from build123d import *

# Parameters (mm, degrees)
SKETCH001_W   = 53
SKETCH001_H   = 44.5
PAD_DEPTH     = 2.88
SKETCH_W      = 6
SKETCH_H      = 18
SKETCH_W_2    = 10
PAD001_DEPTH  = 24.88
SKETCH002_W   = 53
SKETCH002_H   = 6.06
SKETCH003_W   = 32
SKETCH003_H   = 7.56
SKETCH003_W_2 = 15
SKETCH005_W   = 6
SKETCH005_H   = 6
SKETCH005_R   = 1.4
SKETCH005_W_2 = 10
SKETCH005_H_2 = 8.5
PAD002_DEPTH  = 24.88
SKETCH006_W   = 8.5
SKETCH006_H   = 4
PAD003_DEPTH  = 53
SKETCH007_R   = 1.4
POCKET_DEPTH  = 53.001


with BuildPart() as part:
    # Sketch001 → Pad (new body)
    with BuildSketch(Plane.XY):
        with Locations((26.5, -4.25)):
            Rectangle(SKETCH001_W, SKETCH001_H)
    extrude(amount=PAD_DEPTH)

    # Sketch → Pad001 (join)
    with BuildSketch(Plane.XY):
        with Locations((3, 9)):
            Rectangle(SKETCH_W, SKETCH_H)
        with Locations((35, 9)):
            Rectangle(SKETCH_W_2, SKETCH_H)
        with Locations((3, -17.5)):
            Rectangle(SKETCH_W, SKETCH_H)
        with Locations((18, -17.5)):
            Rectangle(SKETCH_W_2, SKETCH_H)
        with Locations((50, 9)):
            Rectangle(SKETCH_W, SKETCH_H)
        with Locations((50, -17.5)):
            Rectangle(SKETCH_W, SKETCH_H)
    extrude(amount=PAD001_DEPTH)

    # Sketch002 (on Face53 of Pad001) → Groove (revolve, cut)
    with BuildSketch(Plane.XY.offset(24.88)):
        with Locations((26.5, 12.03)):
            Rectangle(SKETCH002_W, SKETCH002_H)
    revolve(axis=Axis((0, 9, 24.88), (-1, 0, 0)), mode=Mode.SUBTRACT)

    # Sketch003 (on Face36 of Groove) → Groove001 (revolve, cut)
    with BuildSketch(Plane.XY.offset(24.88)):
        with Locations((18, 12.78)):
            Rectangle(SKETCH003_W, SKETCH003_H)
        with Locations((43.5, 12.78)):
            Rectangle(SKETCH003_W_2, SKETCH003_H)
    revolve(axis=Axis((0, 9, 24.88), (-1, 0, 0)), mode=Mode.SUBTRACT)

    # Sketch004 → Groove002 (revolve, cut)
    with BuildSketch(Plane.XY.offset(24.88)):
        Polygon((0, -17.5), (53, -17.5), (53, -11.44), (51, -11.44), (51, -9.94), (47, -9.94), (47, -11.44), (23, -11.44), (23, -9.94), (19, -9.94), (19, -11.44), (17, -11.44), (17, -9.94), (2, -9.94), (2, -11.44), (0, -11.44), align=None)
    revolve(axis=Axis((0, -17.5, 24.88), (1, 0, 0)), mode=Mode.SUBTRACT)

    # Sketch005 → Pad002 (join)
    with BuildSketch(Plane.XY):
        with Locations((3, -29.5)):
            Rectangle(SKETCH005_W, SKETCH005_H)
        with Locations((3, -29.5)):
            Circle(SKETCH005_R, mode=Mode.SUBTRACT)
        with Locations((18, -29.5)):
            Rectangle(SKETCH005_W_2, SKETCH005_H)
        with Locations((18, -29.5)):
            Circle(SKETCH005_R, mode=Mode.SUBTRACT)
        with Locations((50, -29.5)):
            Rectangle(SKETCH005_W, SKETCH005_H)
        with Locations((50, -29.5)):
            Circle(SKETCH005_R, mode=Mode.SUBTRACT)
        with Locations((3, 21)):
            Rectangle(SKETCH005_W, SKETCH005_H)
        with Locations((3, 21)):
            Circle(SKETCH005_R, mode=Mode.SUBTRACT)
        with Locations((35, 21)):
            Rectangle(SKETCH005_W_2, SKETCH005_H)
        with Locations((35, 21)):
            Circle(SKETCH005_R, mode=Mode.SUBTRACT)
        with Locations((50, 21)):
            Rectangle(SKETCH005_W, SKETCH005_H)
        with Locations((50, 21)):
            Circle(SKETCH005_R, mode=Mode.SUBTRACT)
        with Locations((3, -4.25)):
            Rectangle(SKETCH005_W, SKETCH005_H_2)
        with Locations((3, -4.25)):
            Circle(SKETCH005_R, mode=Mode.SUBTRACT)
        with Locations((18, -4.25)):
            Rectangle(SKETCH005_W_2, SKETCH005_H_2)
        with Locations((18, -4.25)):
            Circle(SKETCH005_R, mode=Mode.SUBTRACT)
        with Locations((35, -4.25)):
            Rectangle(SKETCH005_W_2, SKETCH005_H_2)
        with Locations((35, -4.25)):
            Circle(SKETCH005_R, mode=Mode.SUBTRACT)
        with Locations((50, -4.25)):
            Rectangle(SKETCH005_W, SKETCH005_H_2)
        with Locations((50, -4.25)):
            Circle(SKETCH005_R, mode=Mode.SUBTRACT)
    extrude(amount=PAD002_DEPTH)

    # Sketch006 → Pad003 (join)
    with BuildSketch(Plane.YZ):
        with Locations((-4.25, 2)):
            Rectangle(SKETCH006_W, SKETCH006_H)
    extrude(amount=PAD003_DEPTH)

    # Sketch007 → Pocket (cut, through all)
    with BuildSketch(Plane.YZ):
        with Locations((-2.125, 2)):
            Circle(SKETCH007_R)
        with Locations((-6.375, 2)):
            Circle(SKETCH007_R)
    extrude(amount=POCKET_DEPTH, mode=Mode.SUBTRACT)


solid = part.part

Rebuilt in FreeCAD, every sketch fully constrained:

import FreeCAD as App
import Part
import Sketcher
from FreeCAD import Vector


def add_polygon(sketch, points):
    """Adds a closed chain of lines whose ends are joined by coincident constraints."""
    first, n = sketch.GeometryCount, len(points)
    for a, b in zip(points, points[1:] + points[:1]):
        sketch.addGeometry(Part.LineSegment(App.Vector(*a, 0), App.Vector(*b, 0)), False)
    for i in range(n):
        sketch.addConstraint(Sketcher.Constraint("Coincident", first + i, 2, first + (i + 1) % n, 1))

doc = App.newDocument("Part")
body = doc.addObject("PartDesign::Body", "Body")

# Sketch on XY plane
sketch1 = body.newObject("Sketcher::SketchObject", "Sketch")
sketch1.AttachmentSupport = (doc.getObject("XY_Plane"), [""])
sketch1.MapMode = "FlatFace"
add_polygon(sketch1, [(0, 18), (0, -26), (53, -26), (53, 18)])  # lines 0-3
sketch1.addConstraint([
    Sketcher.Constraint("Vertical", 0),
    Sketcher.Constraint("Horizontal", 1),
    Sketcher.Constraint("Vertical", 2),
    Sketcher.Constraint("Horizontal", 3),
    Sketcher.Constraint("PointOnObject", 0, 2, -2),
    Sketcher.Constraint("DistanceX", 1, 1, 1, 2, 53.0),
    Sketcher.Constraint("DistanceY", 0, 2, 0, 1, 44.5),
    Sketcher.Constraint("DistanceY", -1, 1, 2, 2, 18.0),
])
pad1 = body.newObject("PartDesign::Pad", "Pad")
pad1.Profile = sketch1
pad1.Length = 2.88

# Sketch on XY plane
sketch2 = body.newObject("Sketcher::SketchObject", "Sketch001")
sketch2.AttachmentSupport = (doc.getObject("XY_Plane"), [""])
sketch2.MapMode = "FlatFace"
add_polygon(sketch2, [(0, 18), (0, 0), (6, 0), (6, 18)])  # lines 0-3
add_polygon(sketch2, [(30, 18), (30, 0), (40, 0), (40, 18)])  # lines 4-7
add_polygon(sketch2, [(0, -8), (0, -26), (6, -26), (6, -8)])  # lines 8-11
add_polygon(sketch2, [(13, -8), (13, -26), (23, -26), (23, -8)])  # lines 12-15
add_polygon(sketch2, [(47, 18), (47, 0), (53, 0), (53, 18)])  # lines 16-19
add_polygon(sketch2, [(47, -8), (47, -26), (53, -26), (53, -8)])  # lines 20-23
sketch2.addConstraint([
    Sketcher.Constraint("Vertical", 0),
    Sketcher.Constraint("Horizontal", 1),
    Sketcher.Constraint("Vertical", 2),
    Sketcher.Constraint("Horizontal", 3),
    Sketcher.Constraint("Vertical", 4),
    Sketcher.Constraint("Horizontal", 5),
    Sketcher.Constraint("Vertical", 6),
    Sketcher.Constraint("Horizontal", 7),
    Sketcher.Constraint("Vertical", 8),
    Sketcher.Constraint("Horizontal", 9),
    Sketcher.Constraint("Vertical", 10),
    Sketcher.Constraint("Horizontal", 11),
    Sketcher.Constraint("Vertical", 12),
    Sketcher.Constraint("Horizontal", 13),
    Sketcher.Constraint("Vertical", 14),
    Sketcher.Constraint("Horizontal", 15),
    Sketcher.Constraint("Vertical", 16),
    Sketcher.Constraint("Horizontal", 17),
    Sketcher.Constraint("Vertical", 18),
    Sketcher.Constraint("Horizontal", 19),
    Sketcher.Constraint("Vertical", 20),
    Sketcher.Constraint("Horizontal", 21),
    Sketcher.Constraint("Vertical", 22),
    Sketcher.Constraint("Horizontal", 23),
    Sketcher.Constraint("Coincident", 0, 2, -1, 1),
    Sketcher.Constraint("PointOnObject", 4, 2, -1),
    Sketcher.Constraint("PointOnObject", 8, 2, -2),
    Sketcher.Constraint("PointOnObject", 16, 2, -1),
    Sketcher.Constraint("Horizontal", 3, 2, 6, 2),
    Sketcher.Constraint("Horizontal", 9, 2, 12, 2),
    Sketcher.Constraint("Horizontal", 11, 2, 14, 2),
    Sketcher.Constraint("Horizontal", 7, 2, 18, 2),
    Sketcher.Constraint("Horizontal", 13, 2, 20, 2),
    Sketcher.Constraint("Horizontal", 15, 2, 22, 2),
    Sketcher.Constraint("Vertical", 2, 2, 9, 2),
    Sketcher.Constraint("Vertical", 19, 2, 20, 2),
    Sketcher.Constraint("Vertical", 18, 2, 21, 2),
    Sketcher.Constraint("Equal", 7, 13),
    Sketcher.Constraint("Equal", 11, 17),
    Sketcher.Constraint("Equal", 6, 8),
    Sketcher.Constraint("DistanceX", 1, 1, 1, 2, 6.0),
    Sketcher.Constraint("DistanceX", 5, 1, 5, 2, 10.0),
    Sketcher.Constraint("DistanceY", 0, 2, 0, 1, 18.0),
    Sketcher.Constraint("DistanceX", -1, 1, 4, 2, 30.0),
    Sketcher.Constraint("DistanceX", -1, 1, 12, 2, 13.0),
    Sketcher.Constraint("DistanceX", -1, 1, 16, 2, 47.0),
    Sketcher.Constraint("DistanceY", 8, 2, -1, 1, 26.5),
])
pad2 = body.newObject("PartDesign::Pad", "Pad001")
pad2.Profile = sketch2
pad2.Length = 24.88

# Sketch on XY plane
sketch3 = body.newObject("Sketcher::SketchObject", "Sketch002")
sketch3.AttachmentSupport = (doc.getObject("XY_Plane"), [""])
sketch3.MapMode = "FlatFace"
sketch3.AttachmentOffset = App.Placement(Vector(0, 0, 24.88), App.Rotation())
add_polygon(sketch3, [(0, 15), (0, 9), (53, 9), (53, 15)])  # lines 0-3
sketch3.addGeometry(Part.LineSegment(Vector(53, 9, 0), Vector(0, 9, 0)), True)  # axis
sketch3.addConstraint([
    Sketcher.Constraint("Vertical", 0),
    Sketcher.Constraint("Horizontal", 1),
    Sketcher.Constraint("Vertical", 2),
    Sketcher.Constraint("Horizontal", 3),
    Sketcher.Constraint("Horizontal", 4),
    Sketcher.Constraint("Coincident", 4, 1, 1, 2),
    Sketcher.Constraint("PointOnObject", 0, 2, -2),
    Sketcher.Constraint("PointOnObject", 4, 2, -2),
    Sketcher.Constraint("DistanceX", 1, 1, 1, 2, 53.0),
    Sketcher.Constraint("DistanceY", -1, 1, 0, 2, 9.0),
    Sketcher.Constraint("DistanceY", 0, 2, 0, 1, 6.06),
])
groove = body.newObject("PartDesign::Groove", "Groove")
groove.Profile = sketch3
groove.ReferenceAxis = (sketch3, ["Axis0"])
groove.Angle = 360

# Sketch on XY plane
sketch4 = body.newObject("Sketcher::SketchObject", "Sketch003")
sketch4.AttachmentSupport = (doc.getObject("XY_Plane"), [""])
sketch4.MapMode = "FlatFace"
sketch4.AttachmentOffset = App.Placement(Vector(0, 0, 24.88), App.Rotation())
add_polygon(sketch4, [(2, 17), (2, 9), (34, 9), (34, 17)])  # lines 0-3
add_polygon(sketch4, [(36, 17), (36, 9), (51, 9), (51, 17)])  # lines 4-7
sketch4.addGeometry(Part.LineSegment(Vector(51, 9, 0), Vector(2, 9, 0)), True)  # axis
sketch4.addConstraint([
    Sketcher.Constraint("Vertical", 0),
    Sketcher.Constraint("Horizontal", 1),
    Sketcher.Constraint("Vertical", 2),
    Sketcher.Constraint("Horizontal", 3),
    Sketcher.Constraint("Vertical", 4),
    Sketcher.Constraint("Horizontal", 5),
    Sketcher.Constraint("Vertical", 6),
    Sketcher.Constraint("Horizontal", 7),
    Sketcher.Constraint("Horizontal", 8),
    Sketcher.Constraint("Coincident", 8, 1, 5, 2),
    Sketcher.Constraint("Coincident", 8, 2, 0, 2),
    Sketcher.Constraint("Horizontal", 3, 2, 6, 2),
    Sketcher.Constraint("DistanceX", 1, 1, 1, 2, 32.0),
    Sketcher.Constraint("DistanceX", 5, 1, 5, 2, 15.0),
    Sketcher.Constraint("DistanceX", 8, 2, 8, 1, 49.0),
    Sketcher.Constraint("DistanceX", -1, 1, 0, 2, 2.0),
    Sketcher.Constraint("DistanceY", -1, 1, 0, 2, 9.0),
    Sketcher.Constraint("DistanceY", 0, 2, 0, 1, 7.56),
])
groove2 = body.newObject("PartDesign::Groove", "Groove001")
groove2.Profile = sketch4
groove2.ReferenceAxis = (sketch4, ["Axis0"])
groove2.Angle = 360

# Sketch on XY plane
sketch5 = body.newObject("Sketcher::SketchObject", "Sketch004")
sketch5.AttachmentSupport = (doc.getObject("XY_Plane"), [""])
sketch5.MapMode = "FlatFace"
sketch5.AttachmentOffset = App.Placement(Vector(0, 0, 24.88), App.Rotation())
add_polygon(sketch5, [(0, -17.5), (53, -17.5), (53, -11.4), (51, -11.4), (51, -9.9), (47, -9.9), (47, -11.4), (23, -11.4), (23, -9.9), (19, -9.9), (19, -11.4), (17, -11.4), (17, -9.9), (2, -9.9), (2, -11.4), (0, -11.4)])  # lines 0-15
sketch5.addGeometry(Part.LineSegment(Vector(0, -17.5, 0), Vector(53, -17.5, 0)), True)  # axis
sketch5.addConstraint([
    Sketcher.Constraint("Horizontal", 0),
    Sketcher.Constraint("Vertical", 1),
    Sketcher.Constraint("Horizontal", 2),
    Sketcher.Constraint("Vertical", 3),
    Sketcher.Constraint("Horizontal", 4),
    Sketcher.Constraint("Vertical", 5),
    Sketcher.Constraint("Horizontal", 6),
    Sketcher.Constraint("Vertical", 7),
    Sketcher.Constraint("Horizontal", 8),
    Sketcher.Constraint("Vertical", 9),
    Sketcher.Constraint("Horizontal", 10),
    Sketcher.Constraint("Vertical", 11),
    Sketcher.Constraint("Horizontal", 12),
    Sketcher.Constraint("Vertical", 13),
    Sketcher.Constraint("Horizontal", 14),
    Sketcher.Constraint("Vertical", 15),
    Sketcher.Constraint("Horizontal", 16),
    Sketcher.Constraint("Coincident", 16, 1, 15, 2),
    Sketcher.Constraint("PointOnObject", 14, 2, -2),
    Sketcher.Constraint("Horizontal", 2, 2, 5, 2),
    Sketcher.Constraint("Horizontal", 4, 2, 7, 2),
    Sketcher.Constraint("Horizontal", 6, 2, 9, 2),
    Sketcher.Constraint("Horizontal", 8, 2, 11, 2),
    Sketcher.Constraint("Horizontal", 10, 2, 13, 2),
    Sketcher.Constraint("Vertical", 1, 2, 16, 2),
    Sketcher.Constraint("Equal", 4, 8),
    Sketcher.Constraint("Equal", 2, 10),
    Sketcher.Constraint("Equal", 10, 14),
    Sketcher.Constraint("DistanceX", 0, 1, 0, 2, 53.0),
    Sketcher.Constraint("DistanceX", 2, 2, 2, 1, 2.0),
    Sketcher.Constraint("DistanceX", 4, 2, 4, 1, 4.0),
    Sketcher.Constraint("DistanceX", 6, 2, 6, 1, 24.0),
    Sketcher.Constraint("DistanceY", 3, 1, 3, 2, 1.5),
    Sketcher.Constraint("DistanceY", 1, 1, 1, 2, 6.06),
    Sketcher.Constraint("DistanceY", 0, 2, -1, 1, 17.5),
])
groove3 = body.newObject("PartDesign::Groove", "Groove002")
groove3.Profile = sketch5
groove3.ReferenceAxis = (sketch5, ["Axis0"])
groove3.Angle = 360

# Sketch on XY plane
sketch6 = body.newObject("Sketcher::SketchObject", "Sketch005")
sketch6.AttachmentSupport = (doc.getObject("XY_Plane"), [""])
sketch6.MapMode = "FlatFace"
add_polygon(sketch6, [(0, -26.5), (0, -32.5), (6, -32.5), (6, -26.5)])  # lines 0-3
sketch6.addGeometry(Part.Circle(Vector(3, -29.5, 0), Vector(0, 0, 1), 1.4), False)  # 4
add_polygon(sketch6, [(13, -26.5), (13, -32.5), (23, -32.5), (23, -26.5)])  # lines 5-8
sketch6.addGeometry(Part.Circle(Vector(18, -29.5, 0), Vector(0, 0, 1), 1.4), False)  # 9
add_polygon(sketch6, [(47, -26.5), (47, -32.5), (53, -32.5), (53, -26.5)])  # lines 10-13
sketch6.addGeometry(Part.Circle(Vector(50, -29.5, 0), Vector(0, 0, 1), 1.4), False)  # 14
add_polygon(sketch6, [(0, 24), (0, 18), (6, 18), (6, 24)])  # lines 15-18
sketch6.addGeometry(Part.Circle(Vector(3, 21, 0), Vector(0, 0, 1), 1.4), False)  # 19
add_polygon(sketch6, [(30, 24), (30, 18), (40, 18), (40, 24)])  # lines 20-23
sketch6.addGeometry(Part.Circle(Vector(35, 21, 0), Vector(0, 0, 1), 1.4), False)  # 24
add_polygon(sketch6, [(47, 24), (47, 18), (53, 18), (53, 24)])  # lines 25-28
sketch6.addGeometry(Part.Circle(Vector(50, 21, 0), Vector(0, 0, 1), 1.4), False)  # 29
add_polygon(sketch6, [(0, 0), (0, -8.5), (6, -8.5), (6, 0)])  # lines 30-33
sketch6.addGeometry(Part.Circle(Vector(3, -4.2, 0), Vector(0, 0, 1), 1.4), False)  # 34
add_polygon(sketch6, [(13, 0), (13, -8.5), (23, -8.5), (23, 0)])  # lines 35-38
sketch6.addGeometry(Part.Circle(Vector(18, -4.2, 0), Vector(0, 0, 1), 1.4), False)  # 39
add_polygon(sketch6, [(30, 0), (30, -8.5), (40, -8.5), (40, 0)])  # lines 40-43
sketch6.addGeometry(Part.Circle(Vector(35, -4.2, 0), Vector(0, 0, 1), 1.4), False)  # 44
add_polygon(sketch6, [(47, 0), (47, -8.5), (53, -8.5), (53, 0)])  # lines 45-48
sketch6.addGeometry(Part.Circle(Vector(50, -4.2, 0), Vector(0, 0, 1), 1.4), False)  # 49
sketch6.addConstraint([
    Sketcher.Constraint("Vertical", 0),
    Sketcher.Constraint("Horizontal", 1),
    Sketcher.Constraint("Vertical", 2),
    Sketcher.Constraint("Horizontal", 3),
    Sketcher.Constraint("Vertical", 5),
    Sketcher.Constraint("Horizontal", 6),
    Sketcher.Constraint("Vertical", 7),
    Sketcher.Constraint("Horizontal", 8),
    Sketcher.Constraint("Vertical", 10),
    Sketcher.Constraint("Horizontal", 11),
    Sketcher.Constraint("Vertical", 12),
    Sketcher.Constraint("Horizontal", 13),
    Sketcher.Constraint("Vertical", 15),
    Sketcher.Constraint("Horizontal", 16),
    Sketcher.Constraint("Vertical", 17),
    Sketcher.Constraint("Horizontal", 18),
    Sketcher.Constraint("Vertical", 20),
    Sketcher.Constraint("Horizontal", 21),
    Sketcher.Constraint("Vertical", 22),
    Sketcher.Constraint("Horizontal", 23),
    Sketcher.Constraint("Vertical", 25),
    Sketcher.Constraint("Horizontal", 26),
    Sketcher.Constraint("Vertical", 27),
    Sketcher.Constraint("Horizontal", 28),
    Sketcher.Constraint("Vertical", 30),
    Sketcher.Constraint("Horizontal", 31),
    Sketcher.Constraint("Vertical", 32),
    Sketcher.Constraint("Horizontal", 33),
    Sketcher.Constraint("Vertical", 35),
    Sketcher.Constraint("Horizontal", 36),
    Sketcher.Constraint("Vertical", 37),
    Sketcher.Constraint("Horizontal", 38),
    Sketcher.Constraint("Vertical", 40),
    Sketcher.Constraint("Horizontal", 41),
    Sketcher.Constraint("Vertical", 42),
    Sketcher.Constraint("Horizontal", 43),
    Sketcher.Constraint("Vertical", 45),
    Sketcher.Constraint("Horizontal", 46),
    Sketcher.Constraint("Vertical", 47),
    Sketcher.Constraint("Horizontal", 48),
    Sketcher.Constraint("Coincident", 33, 2, -1, 1),
    Sketcher.Constraint("Equal", 4, 9),
    Sketcher.Constraint("Equal", 9, 14),
    Sketcher.Constraint("Equal", 14, 19),
    Sketcher.Constraint("Equal", 19, 24),
    Sketcher.Constraint("Equal", 24, 29),
    Sketcher.Constraint("Equal", 29, 34),
    Sketcher.Constraint("Equal", 34, 39),
    Sketcher.Constraint("Equal", 39, 44),
    Sketcher.Constraint("Equal", 44, 49),
    Sketcher.Constraint("PointOnObject", 0, 2, -2),
    Sketcher.Constraint("PointOnObject", 15, 2, -2),
    Sketcher.Constraint("PointOnObject", 37, 2, -1),
    Sketcher.Constraint("PointOnObject", 42, 2, -1),
    Sketcher.Constraint("PointOnObject", 47, 2, -1),
    Sketcher.Constraint("Horizontal", 4, 3, 9, 3),
    Sketcher.Constraint("Horizontal", 9, 3, 14, 3),
    Sketcher.Constraint("Horizontal", 19, 3, 24, 3),
    Sketcher.Constraint("Horizontal", 24, 3, 29, 3),
    Sketcher.Constraint("Horizontal", 34, 3, 39, 3),
    Sketcher.Constraint("Horizontal", 39, 3, 44, 3),
    Sketcher.Constraint("Horizontal", 44, 3, 49, 3),
    Sketcher.Constraint("Horizontal", 1, 2, 5, 2),
    Sketcher.Constraint("Horizontal", 3, 2, 7, 2),
    Sketcher.Constraint("Horizontal", 6, 2, 10, 2),
    Sketcher.Constraint("Horizontal", 8, 2, 12, 2),
    Sketcher.Constraint("Horizontal", 16, 2, 20, 2),
    Sketcher.Constraint("Horizontal", 18, 2, 22, 2),
    Sketcher.Constraint("Horizontal", 21, 2, 25, 2),
    Sketcher.Constraint("Horizontal", 23, 2, 27, 2),
    Sketcher.Constraint("Horizontal", 31, 2, 35, 2),
    Sketcher.Constraint("Horizontal", 36, 2, 40, 2),
    Sketcher.Constraint("Horizontal", 41, 2, 45, 2),
    Sketcher.Constraint("Vertical", 4, 3, 19, 3),
    Sketcher.Constraint("Vertical", 14, 3, 29, 3),
    Sketcher.Constraint("Vertical", 19, 3, 34, 3),
    Sketcher.Constraint("Vertical", 9, 3, 39, 3),
    Sketcher.Constraint("Vertical", 24, 3, 44, 3),
    Sketcher.Constraint("Vertical", 29, 3, 49, 3),
    Sketcher.Constraint("Vertical", 2, 2, 16, 2),
    Sketcher.Constraint("Vertical", 13, 2, 25, 2),
    Sketcher.Constraint("Vertical", 12, 2, 26, 2),
    Sketcher.Constraint("Vertical", 17, 2, 31, 2),
    Sketcher.Constraint("Vertical", 8, 2, 35, 2),
    Sketcher.Constraint("Vertical", 7, 2, 36, 2),
    Sketcher.Constraint("Vertical", 23, 2, 40, 2),
    Sketcher.Constraint("Vertical", 22, 2, 41, 2),
    Sketcher.Constraint("Vertical", 28, 2, 45, 2),
    Sketcher.Constraint("Vertical", 27, 2, 46, 2),
    Sketcher.Constraint("Equal", 3, 11),
    Sketcher.Constraint("Equal", 8, 21),
    Sketcher.Constraint("Equal", 48, 0),
    Sketcher.Constraint("Equal", 12, 15),
    Sketcher.Constraint("Diameter", 4, 2.8),
    Sketcher.Constraint("DistanceX", 1, 1, 1, 2, 6.0),
    Sketcher.Constraint("DistanceX", 6, 1, 6, 2, 10.0),
    Sketcher.Constraint("DistanceY", 30, 2, 30, 1, 8.5),
    Sketcher.Constraint("DistanceX", -1, 1, 4, 3, 3.0),
    Sketcher.Constraint("DistanceX", -1, 1, 9, 3, 18.0),
    Sketcher.Constraint("DistanceX", -1, 1, 14, 3, 50.0),
    Sketcher.Constraint("DistanceY", -1, 1, 19, 3, 21.0),
    Sketcher.Constraint("DistanceX", -1, 1, 24, 3, 35.0),
    Sketcher.Constraint("DistanceX", -1, 1, 5, 2, 13.0),
    Sketcher.Constraint("DistanceX", -1, 1, 10, 2, 47.0),
    Sketcher.Constraint("DistanceY", -1, 1, 15, 2, 18.0),
    Sketcher.Constraint("DistanceX", -1, 1, 20, 2, 30.0),
    Sketcher.Constraint("DistanceY", 0, 2, 4, 3, 3.0),
    Sketcher.Constraint("DistanceY", 3, 2, 30, 2, 18.0),
    Sketcher.Constraint("DistanceY", 34, 3, -1, 1, 4.25),
])
pad3 = body.newObject("PartDesign::Pad", "Pad002")
pad3.Profile = sketch6
pad3.Length = 24.88

# Sketch on YZ plane
sketch7 = body.newObject("Sketcher::SketchObject", "Sketch006")
sketch7.AttachmentSupport = (doc.getObject("YZ_Plane"), [""])
sketch7.MapMode = "FlatFace"
add_polygon(sketch7, [(-8.5, 4), (-8.5, 0), (0, 0), (0, 4)])  # lines 0-3
sketch7.addConstraint([
    Sketcher.Constraint("Vertical", 0),
    Sketcher.Constraint("Horizontal", 1),
    Sketcher.Constraint("Vertical", 2),
    Sketcher.Constraint("Horizontal", 3),
    Sketcher.Constraint("Coincident", 1, 2, -1, 1),
    Sketcher.Constraint("DistanceY", 0, 2, 0, 1, 4.0),
    Sketcher.Constraint("DistanceX", 1, 1, 1, 2, 8.5),
])
pad4 = body.newObject("PartDesign::Pad", "Pad003")
pad4.Profile = sketch7
pad4.Length = 53

# Sketch on YZ plane
sketch8 = body.newObject("Sketcher::SketchObject", "Sketch007")
sketch8.AttachmentSupport = (doc.getObject("YZ_Plane"), [""])
sketch8.MapMode = "FlatFace"
sketch8.addGeometry([
    Part.Circle(Vector(-2.1, 2, 0), Vector(0, 0, 1), 1.4),
    Part.Circle(Vector(-6.4, 2, 0), Vector(0, 0, 1), 1.4),
], False)
sketch8.addConstraint([
    Sketcher.Constraint("Equal", 0, 1),
    Sketcher.Constraint("Horizontal", 0, 3, 1, 3),
    Sketcher.Constraint("Diameter", 0, 2.8),
    Sketcher.Constraint("DistanceY", -1, 1, 0, 3, 2.0),
    Sketcher.Constraint("DistanceX", 1, 3, 0, 3, 4.25),
    Sketcher.Constraint("DistanceX", 0, 3, -1, 1, 2.125),
])
pocket1 = body.newObject("PartDesign::Pocket", "Pocket")
pocket1.Profile = sketch8
pocket1.Type = "ThroughAll"
pocket1.Reversed = True

doc.recompute()
